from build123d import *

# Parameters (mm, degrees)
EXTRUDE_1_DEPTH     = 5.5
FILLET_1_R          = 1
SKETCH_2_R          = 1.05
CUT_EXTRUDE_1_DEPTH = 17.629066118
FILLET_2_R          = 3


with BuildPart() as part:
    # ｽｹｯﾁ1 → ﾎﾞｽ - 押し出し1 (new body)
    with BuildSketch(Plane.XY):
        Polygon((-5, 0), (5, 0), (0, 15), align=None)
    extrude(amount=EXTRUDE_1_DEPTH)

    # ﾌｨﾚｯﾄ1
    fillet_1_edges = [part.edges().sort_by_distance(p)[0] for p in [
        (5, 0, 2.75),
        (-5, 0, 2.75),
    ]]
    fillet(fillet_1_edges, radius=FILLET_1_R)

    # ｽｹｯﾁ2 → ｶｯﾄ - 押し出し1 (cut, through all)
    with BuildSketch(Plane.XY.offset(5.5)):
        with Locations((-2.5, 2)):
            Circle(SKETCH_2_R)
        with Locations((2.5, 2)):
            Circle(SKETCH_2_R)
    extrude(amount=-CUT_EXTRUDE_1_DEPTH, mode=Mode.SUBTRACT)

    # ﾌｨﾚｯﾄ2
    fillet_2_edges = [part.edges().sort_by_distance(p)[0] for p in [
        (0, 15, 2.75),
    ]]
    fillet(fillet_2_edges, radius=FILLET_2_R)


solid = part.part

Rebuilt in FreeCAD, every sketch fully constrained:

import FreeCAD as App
import Part
import Sketcher

V = App.Vector
Q = App.Units.Quantity


def edges_at(feature, points):
    """Names of the edges that pass closest to the given points."""
    edges = feature.Shape.Edges
    near = lambda p: min(range(len(edges)), key=lambda i: edges[i].distToShape(Part.Vertex(*p))[0])
    return sorted({f"Edge{near(p) + 1}" for p in points})

doc = App.newDocument("Part")
body = doc.addObject("PartDesign::Body", "Body")

# Sketch on XY plane
sketch1 = body.newObject("Sketcher::SketchObject", "Sketch")
sketch1.AttachmentSupport = (doc.getObject("XY_Plane"), [""])
sketch1.MapMode = "FlatFace"
sketch1.addGeometry(Part.LineSegment(V(-5, 0, 0), V(5, 0, 0)), False)
sketch1.addGeometry(Part.LineSegment(V(5, 0, 0), V(0, 15, 0)), False)
sketch1.addGeometry(Part.LineSegment(V(0, 15, 0), V(-5, 0, 0)), False)
sketch1.addConstraint(Sketcher.Constraint("Coincident", 0, 2, 1, 1))
sketch1.addConstraint(Sketcher.Constraint("Coincident", 1, 2, 2, 1))
sketch1.addConstraint(Sketcher.Constraint("Coincident", 2, 2, 0, 1))
sketch1.addConstraint(Sketcher.Constraint("Horizontal", 0))
sketch1.addConstraint(Sketcher.Constraint("Symmetric", 0, 2, 2, 2, -1, 1))
sketch1.addConstraint(Sketcher.Constraint("PointOnObject", 1, 2, -2))
sketch1.addConstraint(Sketcher.Constraint("DistanceX", 0, 1, 0, 2, Q("10 mm")))
sketch1.addConstraint(Sketcher.Constraint("DistanceY", -1, 1, 1, 2, Q("15 mm")))
pad1 = body.newObject("PartDesign::Pad", "Pad")
pad1.Profile = sketch1
pad1.Length = 5.5
doc.recompute()

fillet = body.newObject("PartDesign::Fillet", "Fillet")
fillet.Base = (pad1, edges_at(pad1, [(5, 0, 2.75), (-5, 0, 2.75)]))
fillet.Radius = 1

# Sketch on XY plane
sketch2 = body.newObject("Sketcher::SketchObject", "Sketch001")
sketch2.AttachmentSupport = (doc.getObject("XY_Plane"), [""])
sketch2.MapMode = "FlatFace"
sketch2.AttachmentOffset = App.Placement(V(0, 0, 5.5), App.Rotation())
sketch2.addGeometry(Part.Circle(V(-2.5, 2, 0), V(0, 0, 1), 1.1), False)
sketch2.addGeometry(Part.Circle(V(2.5, 2, 0), V(0, 0, 1), 1.1), False)
sketch2.addConstraint(Sketcher.Constraint("Equal", 0, 1))
sketch2.addConstraint(Sketcher.Constraint("Symmetric", 0, 3, 1, 3, -2))
sketch2.addConstraint(Sketcher.Constraint("Diameter", 0, Q("2.1 mm")))
sketch2.addConstraint(Sketcher.Constraint("DistanceY", -1, 1, 0, 3, Q("2 mm")))
sketch2.addConstraint(Sketcher.Constraint("DistanceX", 0, 3, 1, 3, Q("5 mm")))
pocket1 = body.newObject("PartDesign::Pocket", "Pocket")
pocket1.Profile = sketch2
pocket1.Type = "ThroughAll"
doc.recompute()

fillet2 = body.newObject("PartDesign::Fillet", "Fillet001")
fillet2.Base = (pocket1, edges_at(pocket1, [(0, 15, 2.75)]))
fillet2.Radius = 3

doc.recompute()
